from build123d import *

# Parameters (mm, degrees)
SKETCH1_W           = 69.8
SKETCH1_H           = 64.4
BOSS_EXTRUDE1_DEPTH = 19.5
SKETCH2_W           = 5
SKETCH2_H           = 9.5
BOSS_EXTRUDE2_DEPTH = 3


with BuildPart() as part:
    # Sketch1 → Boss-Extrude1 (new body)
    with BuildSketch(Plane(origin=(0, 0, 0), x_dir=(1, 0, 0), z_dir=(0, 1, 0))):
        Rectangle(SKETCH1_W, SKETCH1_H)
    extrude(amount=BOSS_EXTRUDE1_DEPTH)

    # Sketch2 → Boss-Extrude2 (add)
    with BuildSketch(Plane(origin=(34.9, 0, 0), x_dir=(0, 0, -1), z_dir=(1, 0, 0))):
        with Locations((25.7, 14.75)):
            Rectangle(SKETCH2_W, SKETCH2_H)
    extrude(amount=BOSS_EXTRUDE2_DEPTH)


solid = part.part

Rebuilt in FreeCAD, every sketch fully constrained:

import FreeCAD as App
import Part
import Sketcher
from FreeCAD import Vector


def add_polygon(sketch, points):
    """Adds a closed chain of lines whose ends are joined by coincident constraints."""
    first, n = sketch.GeometryCount, len(points)
    for a, b in zip(points, points[1:] + points[:1]):
        sketch.addGeometry(Part.LineSegment(App.Vector(*a, 0), App.Vector(*b, 0)), False)
    for i in range(n):
        sketch.addConstraint(Sketcher.Constraint("Coincident", first + i, 2, first + (i + 1) % n, 1))

doc = App.newDocument("Part")
params = doc.addObject("Spreadsheet::Sheet", "Params")
for row, (alias, value) in enumerate([
    ("sketch1_width", "69.8 mm"),
    ("sketch1_height", "64.4 mm"),
    ("pad1_length", "19.5 mm"),
    ("sketch2_height", "5 mm"),
    ("sketch2_width", "9.5 mm"),
    ("pad2_length", "3 mm"),
], start=1):
    params.set(f"A{row}", alias)
    params.set(f"B{row}", "=" + value)
    params.setAlias(f"B{row}", alias)

body = doc.addObject("PartDesign::Body", "Body")

sketch1 = body.newObject("Sketcher::SketchObject", "Sketch")
sketch1.AttachmentSupport = (doc.getObject("XZ_Plane"), [""])
sketch1.MapMode = "FlatFace"
add_polygon(sketch1, [(-34.9, -32.2), (-34.9, 32.2), (34.9, 32.2), (34.9, -32.2)])
sketch1.addConstraint([
    Sketcher.Constraint("Vertical", 0),
    Sketcher.Constraint("Horizontal", 1),
    Sketcher.Constraint("Vertical", 2),
    Sketcher.Constraint("Horizontal", 3),
    Sketcher.Constraint("Symmetric", 0, 2, 2, 2, -1, 1),
    Sketcher.Constraint("DistanceX", 1, 1, 1, 2, 69.8),
    Sketcher.Constraint("DistanceY", 0, 1, 0, 2, 64.4),
])
sketch1.setExpression("Constraints[9]", "Params.sketch1_width")
sketch1.setExpression("Constraints[10]", "Params.sketch1_height")
pad1 = body.newObject("PartDesign::Pad", "Pad")
pad1.Profile = sketch1
pad1.setExpression("Length", "Params.pad1_length")
pad1.Reversed = True

sketch2 = body.newObject("Sketcher::SketchObject", "Sketch001")
sketch2.AttachmentSupport = (doc.getObject("YZ_Plane"), [""])
sketch2.MapMode = "FlatFace"
sketch2.AttachmentOffset = App.Placement(Vector(0, 0, 34.9), App.Rotation())
add_polygon(sketch2, [(19.5, -23.2), (10, -23.2), (10, -28.2), (19.5, -28.2)])
sketch2.addConstraint([
    Sketcher.Constraint("Horizontal", 0),
    Sketcher.Constraint("Vertical", 1),
    Sketcher.Constraint("Horizontal", 2),
    Sketcher.Constraint("Vertical", 3),
    Sketcher.Constraint("DistanceY", 1, 2, 1, 1, 5.0),
    Sketcher.Constraint("DistanceX", 0, 2, 0, 1, 9.5),
    Sketcher.Constraint("DistanceX", -1, 1, 0, 2, 10.0),
    Sketcher.Constraint("DistanceY", 0, 2, -1, 1, 23.2),
])
sketch2.setExpression("Constraints[8]", "Params.sketch2_height")
sketch2.setExpression("Constraints[9]", "Params.sketch2_width")
pad2 = body.newObject("PartDesign::Pad", "Pad001")
pad2.Profile = sketch2
pad2.setExpression("Length", "Params.pad2_length")

doc.recompute()
